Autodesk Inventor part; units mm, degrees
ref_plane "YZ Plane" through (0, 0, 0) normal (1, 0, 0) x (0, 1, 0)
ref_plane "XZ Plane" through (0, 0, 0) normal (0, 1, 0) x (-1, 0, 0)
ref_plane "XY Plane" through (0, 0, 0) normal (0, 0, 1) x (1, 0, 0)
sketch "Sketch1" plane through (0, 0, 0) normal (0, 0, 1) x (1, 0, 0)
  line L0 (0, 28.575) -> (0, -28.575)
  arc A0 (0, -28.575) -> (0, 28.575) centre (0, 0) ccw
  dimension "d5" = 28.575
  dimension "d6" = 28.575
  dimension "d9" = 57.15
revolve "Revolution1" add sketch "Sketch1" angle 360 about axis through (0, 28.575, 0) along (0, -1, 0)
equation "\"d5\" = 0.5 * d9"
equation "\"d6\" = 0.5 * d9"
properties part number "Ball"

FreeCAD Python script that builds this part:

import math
import FreeCAD as App
import Part
import Sketcher
Q = App.Units.Quantity

doc = App.newDocument("Part")
params = doc.addObject("Spreadsheet::Sheet", "Params")
for row, (alias, value) in enumerate([
    ("sketch1_radius", "1.125 in"),
    ("revolution_angle", "360 deg"),
], start=1):
    params.set(f"A{row}", alias)
    params.set(f"B{row}", "=" + value)
    params.setAlias(f"B{row}", alias)

body = doc.addObject("PartDesign::Body", "Body")

# Sketch on XY plane
sketch1 = body.newObject("Sketcher::SketchObject", "Sketch")
sketch1.AttachmentSupport = (doc.getObject("XY_Plane"), [""])
sketch1.MapMode = "FlatFace"
sketch1.addGeometry([
    Part.ArcOfCircle(Part.Circle(App.Vector(0, 0, 0), App.Vector(0, 0, 1), 29), math.radians(-90), math.radians(90)),
    Part.LineSegment(App.Vector(0, 29, 0), App.Vector(0, -29, 0)),
], False)
sketch1.addConstraint([
    Sketcher.Constraint("Coincident", 0, 1, 1, 2),
    Sketcher.Constraint("Coincident", 1, 1, 0, 2),
    Sketcher.Constraint("Vertical", 1),
    Sketcher.Constraint("Coincident", 0, 3, -1, 1),
    Sketcher.Constraint("PointOnObject", 0, 1, -2),
    Sketcher.Constraint("Radius", 0, Q("1.125 in")),
])
sketch1.setExpression("Constraints[5]", "Params.sketch1_radius")
revolution = body.newObject("PartDesign::Revolution", "Revolution")
revolution.Profile = sketch1
revolution.ReferenceAxis = (sketch1, ["V_Axis"])
revolution.setExpression("Angle", "Params.revolution_angle")

doc.recompute()
